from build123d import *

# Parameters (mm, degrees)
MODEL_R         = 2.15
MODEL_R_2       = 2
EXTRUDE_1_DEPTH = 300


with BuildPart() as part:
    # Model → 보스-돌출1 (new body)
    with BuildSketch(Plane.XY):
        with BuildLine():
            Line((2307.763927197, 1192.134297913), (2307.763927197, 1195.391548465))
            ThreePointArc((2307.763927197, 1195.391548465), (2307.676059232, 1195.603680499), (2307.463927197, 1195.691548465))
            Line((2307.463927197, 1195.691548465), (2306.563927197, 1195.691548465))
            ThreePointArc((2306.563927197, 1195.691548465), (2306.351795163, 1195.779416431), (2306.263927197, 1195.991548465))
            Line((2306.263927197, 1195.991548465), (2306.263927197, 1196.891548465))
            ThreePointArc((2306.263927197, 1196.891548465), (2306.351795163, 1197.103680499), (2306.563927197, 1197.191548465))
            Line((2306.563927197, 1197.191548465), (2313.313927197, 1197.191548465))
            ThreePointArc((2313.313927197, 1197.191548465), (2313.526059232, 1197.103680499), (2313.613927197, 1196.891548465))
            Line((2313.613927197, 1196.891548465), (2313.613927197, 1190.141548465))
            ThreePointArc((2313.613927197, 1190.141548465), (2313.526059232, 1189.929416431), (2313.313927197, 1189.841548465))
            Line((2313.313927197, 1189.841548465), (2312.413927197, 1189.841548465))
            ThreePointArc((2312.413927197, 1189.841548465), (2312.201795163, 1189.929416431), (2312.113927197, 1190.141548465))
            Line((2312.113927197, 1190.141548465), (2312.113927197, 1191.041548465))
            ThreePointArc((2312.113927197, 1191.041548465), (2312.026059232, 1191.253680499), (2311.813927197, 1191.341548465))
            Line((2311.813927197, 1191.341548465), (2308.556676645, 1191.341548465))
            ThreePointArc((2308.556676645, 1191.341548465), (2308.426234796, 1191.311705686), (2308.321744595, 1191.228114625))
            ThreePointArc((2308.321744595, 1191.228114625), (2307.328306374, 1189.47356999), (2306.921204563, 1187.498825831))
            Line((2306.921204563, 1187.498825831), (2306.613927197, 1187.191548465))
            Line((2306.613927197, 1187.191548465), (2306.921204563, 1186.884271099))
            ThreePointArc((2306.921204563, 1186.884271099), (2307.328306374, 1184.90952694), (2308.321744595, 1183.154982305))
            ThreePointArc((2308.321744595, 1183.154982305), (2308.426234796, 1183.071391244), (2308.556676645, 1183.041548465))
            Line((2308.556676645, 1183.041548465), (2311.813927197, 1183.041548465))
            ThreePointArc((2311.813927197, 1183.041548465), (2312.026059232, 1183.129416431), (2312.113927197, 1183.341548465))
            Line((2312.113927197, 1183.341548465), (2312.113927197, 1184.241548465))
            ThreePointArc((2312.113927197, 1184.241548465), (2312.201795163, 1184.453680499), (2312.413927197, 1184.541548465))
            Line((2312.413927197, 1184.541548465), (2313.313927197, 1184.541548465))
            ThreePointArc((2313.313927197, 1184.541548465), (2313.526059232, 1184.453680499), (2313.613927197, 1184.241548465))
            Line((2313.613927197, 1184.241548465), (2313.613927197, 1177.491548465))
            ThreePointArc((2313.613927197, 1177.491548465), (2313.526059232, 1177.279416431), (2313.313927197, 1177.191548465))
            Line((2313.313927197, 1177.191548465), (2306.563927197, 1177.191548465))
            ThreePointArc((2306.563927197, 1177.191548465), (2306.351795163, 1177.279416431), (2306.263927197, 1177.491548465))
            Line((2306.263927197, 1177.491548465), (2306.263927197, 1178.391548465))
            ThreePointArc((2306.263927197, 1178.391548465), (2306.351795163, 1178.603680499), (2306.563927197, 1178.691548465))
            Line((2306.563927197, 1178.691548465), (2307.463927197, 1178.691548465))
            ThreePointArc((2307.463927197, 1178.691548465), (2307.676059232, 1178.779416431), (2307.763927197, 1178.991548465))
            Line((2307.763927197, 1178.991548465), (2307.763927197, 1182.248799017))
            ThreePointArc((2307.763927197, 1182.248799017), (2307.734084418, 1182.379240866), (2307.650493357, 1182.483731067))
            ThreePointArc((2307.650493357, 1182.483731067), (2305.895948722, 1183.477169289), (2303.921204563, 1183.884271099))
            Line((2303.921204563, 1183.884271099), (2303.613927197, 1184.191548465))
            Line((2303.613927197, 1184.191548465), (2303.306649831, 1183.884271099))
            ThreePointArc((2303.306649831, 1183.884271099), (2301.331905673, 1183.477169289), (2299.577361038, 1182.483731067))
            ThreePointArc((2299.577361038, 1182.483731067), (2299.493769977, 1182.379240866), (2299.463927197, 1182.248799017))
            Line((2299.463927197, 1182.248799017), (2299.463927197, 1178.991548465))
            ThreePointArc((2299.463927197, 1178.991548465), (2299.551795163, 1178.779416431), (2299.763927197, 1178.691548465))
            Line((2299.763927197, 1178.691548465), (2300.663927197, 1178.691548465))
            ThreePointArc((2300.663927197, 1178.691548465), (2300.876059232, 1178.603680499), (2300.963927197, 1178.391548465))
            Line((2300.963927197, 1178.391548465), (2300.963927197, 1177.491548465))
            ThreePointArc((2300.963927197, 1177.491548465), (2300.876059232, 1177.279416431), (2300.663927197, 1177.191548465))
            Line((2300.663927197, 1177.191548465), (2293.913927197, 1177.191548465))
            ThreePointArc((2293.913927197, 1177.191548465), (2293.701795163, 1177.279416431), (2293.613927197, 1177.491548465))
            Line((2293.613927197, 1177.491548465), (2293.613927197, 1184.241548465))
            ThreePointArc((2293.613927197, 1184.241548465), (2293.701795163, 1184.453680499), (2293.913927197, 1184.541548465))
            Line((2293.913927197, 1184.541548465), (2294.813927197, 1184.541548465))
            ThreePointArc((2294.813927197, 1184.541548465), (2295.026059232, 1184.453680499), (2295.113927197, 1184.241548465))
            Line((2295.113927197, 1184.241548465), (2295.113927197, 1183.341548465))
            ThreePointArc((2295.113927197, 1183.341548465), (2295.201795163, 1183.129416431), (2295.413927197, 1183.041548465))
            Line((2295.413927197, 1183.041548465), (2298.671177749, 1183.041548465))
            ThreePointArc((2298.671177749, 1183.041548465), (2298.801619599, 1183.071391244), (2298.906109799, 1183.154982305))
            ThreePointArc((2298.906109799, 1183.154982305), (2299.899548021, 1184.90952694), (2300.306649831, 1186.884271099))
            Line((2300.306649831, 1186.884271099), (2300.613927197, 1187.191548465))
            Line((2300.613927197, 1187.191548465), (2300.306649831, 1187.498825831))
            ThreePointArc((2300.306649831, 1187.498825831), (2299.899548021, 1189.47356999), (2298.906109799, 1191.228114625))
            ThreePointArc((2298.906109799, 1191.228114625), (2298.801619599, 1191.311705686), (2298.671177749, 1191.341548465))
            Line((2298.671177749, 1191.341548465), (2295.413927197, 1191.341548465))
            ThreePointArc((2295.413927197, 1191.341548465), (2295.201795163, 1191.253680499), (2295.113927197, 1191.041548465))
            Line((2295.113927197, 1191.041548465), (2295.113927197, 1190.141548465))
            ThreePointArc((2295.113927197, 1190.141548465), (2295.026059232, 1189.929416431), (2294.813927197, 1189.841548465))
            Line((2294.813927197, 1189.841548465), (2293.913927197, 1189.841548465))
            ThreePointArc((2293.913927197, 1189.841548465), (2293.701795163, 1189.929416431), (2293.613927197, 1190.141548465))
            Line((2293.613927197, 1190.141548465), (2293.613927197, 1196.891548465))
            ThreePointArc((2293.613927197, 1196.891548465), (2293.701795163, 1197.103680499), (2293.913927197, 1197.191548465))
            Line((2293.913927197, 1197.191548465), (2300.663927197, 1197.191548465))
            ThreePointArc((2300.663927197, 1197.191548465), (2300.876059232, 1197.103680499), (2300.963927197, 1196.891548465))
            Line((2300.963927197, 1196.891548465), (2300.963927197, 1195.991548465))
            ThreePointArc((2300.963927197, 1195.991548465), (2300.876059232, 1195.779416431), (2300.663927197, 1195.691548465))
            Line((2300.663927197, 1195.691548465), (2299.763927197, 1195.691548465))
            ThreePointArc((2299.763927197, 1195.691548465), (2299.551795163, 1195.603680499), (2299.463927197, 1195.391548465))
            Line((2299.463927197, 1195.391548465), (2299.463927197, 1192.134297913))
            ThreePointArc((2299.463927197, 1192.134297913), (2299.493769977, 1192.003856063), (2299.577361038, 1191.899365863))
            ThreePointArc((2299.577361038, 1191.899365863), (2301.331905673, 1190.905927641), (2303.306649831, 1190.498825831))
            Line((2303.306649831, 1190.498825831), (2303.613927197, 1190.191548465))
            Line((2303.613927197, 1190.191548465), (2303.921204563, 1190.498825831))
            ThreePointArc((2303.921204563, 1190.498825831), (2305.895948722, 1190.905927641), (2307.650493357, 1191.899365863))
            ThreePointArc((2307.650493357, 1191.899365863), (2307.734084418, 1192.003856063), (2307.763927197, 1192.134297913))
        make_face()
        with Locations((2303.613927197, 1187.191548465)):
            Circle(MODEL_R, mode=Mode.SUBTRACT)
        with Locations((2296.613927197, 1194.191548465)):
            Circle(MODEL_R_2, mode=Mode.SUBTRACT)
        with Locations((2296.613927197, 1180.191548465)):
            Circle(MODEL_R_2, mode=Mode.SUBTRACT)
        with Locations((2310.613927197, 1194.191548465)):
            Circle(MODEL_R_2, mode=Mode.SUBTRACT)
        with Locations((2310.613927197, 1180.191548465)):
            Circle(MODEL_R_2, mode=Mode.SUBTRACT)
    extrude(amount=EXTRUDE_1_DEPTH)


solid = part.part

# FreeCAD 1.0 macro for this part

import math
import FreeCAD as App
import Part
import Sketcher

V = App.Vector
Q = App.Units.Quantity

doc = App.newDocument("Part")
body = doc.addObject("PartDesign::Body", "Body")

sketch1 = body.newObject("Sketcher::SketchObject", "Sketch")
sketch1.AttachmentSupport = (doc.getObject("XY_Plane"), [""])
sketch1.MapMode = "FlatFace"
sketch1.addGeometry(Part.LineSegment(V(2307.763927, 1195.391548, 0), V(2307.763927, 1192.134298, 0)), False)
sketch1.addGeometry(Part.ArcOfCircle(Part.Circle(V(2307.463927, 1192.134298, 0), V(0, 0, 1), 0.3), math.radians(-51.545921), math.radians(0)), False)
sketch1.addGeometry(Part.ArcOfCircle(Part.Circle(V(2303.613927, 1196.982382, 0), V(0, 0, 1), 6.490833), math.radians(-87.286592), math.radians(-51.545921)), False)
sketch1.addGeometry(Part.LineSegment(V(2303.921205, 1190.498826, 0), V(2303.613927, 1190.191548, 0)), False)
sketch1.addGeometry(Part.LineSegment(V(2303.613927, 1190.191548, 0), V(2303.30665, 1190.498826, 0)), False)
sketch1.addGeometry(Part.ArcOfCircle(Part.Circle(V(2303.613927, 1196.982382, 0), V(0, 0, 1), 6.490833), math.radians(-128.454079), math.radians(-92.713408)), False)
sketch1.addGeometry(Part.ArcOfCircle(Part.Circle(V(2299.763927, 1192.134298, 0), V(0, 0, 1), 0.3), math.radians(-180), math.radians(-128.454079)), False)
sketch1.addGeometry(Part.LineSegment(V(2299.463927, 1192.134298, 0), V(2299.463927, 1195.391548, 0)), False)
sketch1.addGeometry(Part.ArcOfCircle(Part.Circle(V(2299.763927, 1195.391548, 0), V(0, 0, 1), 0.3), math.radians(90), math.radians(180)), False)
sketch1.addGeometry(Part.LineSegment(V(2299.763927, 1195.691548, 0), V(2300.663927, 1195.691548, 0)), False)
sketch1.addGeometry(Part.ArcOfCircle(Part.Circle(V(2300.663927, 1195.991548, 0), V(0, 0, 1), 0.3), math.radians(-90), math.radians(0)), False)
sketch1.addGeometry(Part.LineSegment(V(2300.963927, 1195.991548, 0), V(2300.963927, 1196.891548, 0)), False)
sketch1.addGeometry(Part.ArcOfCircle(Part.Circle(V(2300.663927, 1196.891548, 0), V(0, 0, 1), 0.3), math.radians(0), math.radians(90)), False)
sketch1.addGeometry(Part.LineSegment(V(2300.663927, 1197.191548, 0), V(2293.913927, 1197.191548, 0)), False)
sketch1.addGeometry(Part.ArcOfCircle(Part.Circle(V(2293.913927, 1196.891548, 0), V(0, 0, 1), 0.3), math.radians(90), math.radians(180)), False)
sketch1.addGeometry(Part.LineSegment(V(2293.613927, 1196.891548, 0), V(2293.613927, 1190.141548, 0)), False)
sketch1.addGeometry(Part.ArcOfCircle(Part.Circle(V(2293.913927, 1190.141548, 0), V(0, 0, 1), 0.3), math.radians(-180), math.radians(-90)), False)
sketch1.addGeometry(Part.LineSegment(V(2293.913927, 1189.841548, 0), V(2294.813927, 1189.841548, 0)), False)
sketch1.addGeometry(Part.ArcOfCircle(Part.Circle(V(2294.813927, 1190.141548, 0), V(0, 0, 1), 0.3), math.radians(-90), math.radians(0)), False)
sketch1.addGeometry(Part.LineSegment(V(2295.113927, 1190.141548, 0), V(2295.113927, 1191.041548, 0)), False)
sketch1.addGeometry(Part.ArcOfCircle(Part.Circle(V(2295.413927, 1191.041548, 0), V(0, 0, 1), 0.3), math.radians(90), math.radians(180)), False)
sketch1.addGeometry(Part.LineSegment(V(2295.413927, 1191.341548, 0), V(2298.671178, 1191.341548, 0)), False)
sketch1.addGeometry(Part.ArcOfCircle(Part.Circle(V(2298.671178, 1191.041548, 0), V(0, 0, 1), 0.3), math.radians(38.454079), math.radians(90)), False)
sketch1.addGeometry(Part.ArcOfCircle(Part.Circle(V(2293.823094, 1187.191548, 0), V(0, 0, 1), 6.490833), math.radians(2.713408), math.radians(38.454079)), False)
sketch1.addGeometry(Part.LineSegment(V(2300.30665, 1187.498826, 0), V(2300.613927, 1187.191548, 0)), False)
sketch1.addGeometry(Part.LineSegment(V(2300.613927, 1187.191548, 0), V(2300.30665, 1186.884271, 0)), False)
sketch1.addGeometry(Part.ArcOfCircle(Part.Circle(V(2293.823094, 1187.191548, 0), V(0, 0, 1), 6.490833), math.radians(-38.454079), math.radians(-2.713408)), False)
sketch1.addGeometry(Part.ArcOfCircle(Part.Circle(V(2298.671178, 1183.341548, 0), V(0, 0, 1), 0.3), math.radians(-90), math.radians(-38.454079)), False)
sketch1.addGeometry(Part.LineSegment(V(2298.671178, 1183.041548, 0), V(2295.413927, 1183.041548, 0)), False)
sketch1.addGeometry(Part.ArcOfCircle(Part.Circle(V(2295.413927, 1183.341548, 0), V(0, 0, 1), 0.3), math.radians(-180), math.radians(-90)), False)
sketch1.addGeometry(Part.LineSegment(V(2295.113927, 1183.341548, 0), V(2295.113927, 1184.241548, 0)), False)
sketch1.addGeometry(Part.ArcOfCircle(Part.Circle(V(2294.813927, 1184.241548, 0), V(0, 0, 1), 0.3), math.radians(0), math.radians(90)), False)
sketch1.addGeometry(Part.LineSegment(V(2294.813927, 1184.541548, 0), V(2293.913927, 1184.541548, 0)), False)
sketch1.addGeometry(Part.ArcOfCircle(Part.Circle(V(2293.913927, 1184.241548, 0), V(0, 0, 1), 0.3), math.radians(90), math.radians(180)), False)
sketch1.addGeometry(Part.LineSegment(V(2293.613927, 1184.241548, 0), V(2293.613927, 1177.491548, 0)), False)
sketch1.addGeometry(Part.ArcOfCircle(Part.Circle(V(2293.913927, 1177.491548, 0), V(0, 0, 1), 0.3), math.radians(-180), math.radians(-90)), False)
sketch1.addGeometry(Part.LineSegment(V(2293.913927, 1177.191548, 0), V(2300.663927, 1177.191548, 0)), False)
sketch1.addGeometry(Part.ArcOfCircle(Part.Circle(V(2300.663927, 1177.491548, 0), V(0, 0, 1), 0.3), math.radians(-90), math.radians(0)), False)
sketch1.addGeometry(Part.LineSegment(V(2300.963927, 1177.491548, 0), V(2300.963927, 1178.391548, 0)), False)
sketch1.addGeometry(Part.ArcOfCircle(Part.Circle(V(2300.663927, 1178.391548, 0), V(0, 0, 1), 0.3), math.radians(0), math.radians(90)), False)
sketch1.addGeometry(Part.LineSegment(V(2300.663927, 1178.691548, 0), V(2299.763927, 1178.691548, 0)), False)
sketch1.addGeometry(Part.ArcOfCircle(Part.Circle(V(2299.763927, 1178.991548, 0), V(0, 0, 1), 0.3), math.radians(-180), math.radians(-90)), False)
sketch1.addGeometry(Part.LineSegment(V(2299.463927, 1178.991548, 0), V(2299.463927, 1182.248799, 0)), False)
sketch1.addGeometry(Part.ArcOfCircle(Part.Circle(V(2299.763927, 1182.248799, 0), V(0, 0, 1), 0.3), math.radians(128.45408), math.radians(179.999999)), False)
sketch1.addGeometry(Part.ArcOfCircle(Part.Circle(V(2303.613927, 1177.400715, 0), V(0, 0, 1), 6.490833), math.radians(92.713408), math.radians(128.454079)), False)
sketch1.addGeometry(Part.LineSegment(V(2303.30665, 1183.884271, 0), V(2303.613927, 1184.191548, 0)), False)
sketch1.addGeometry(Part.LineSegment(V(2303.613927, 1184.191548, 0), V(2303.921205, 1183.884271, 0)), False)
sketch1.addGeometry(Part.ArcOfCircle(Part.Circle(V(2303.613927, 1177.400715, 0), V(0, 0, 1), 6.490833), math.radians(51.545921), math.radians(87.286592)), False)
sketch1.addGeometry(Part.ArcOfCircle(Part.Circle(V(2307.463927, 1182.248799, 0), V(0, 0, 1), 0.3), math.radians(0), math.radians(51.545921)), False)
sketch1.addGeometry(Part.LineSegment(V(2307.763927, 1182.248799, 0), V(2307.763927, 1178.991548, 0)), False)
sketch1.addGeometry(Part.ArcOfCircle(Part.Circle(V(2307.463927, 1178.991548, 0), V(0, 0, 1), 0.3), math.radians(-90), math.radians(0)), False)
sketch1.addGeometry(Part.LineSegment(V(2307.463927, 1178.691548, 0), V(2306.563927, 1178.691548, 0)), False)
sketch1.addGeometry(Part.ArcOfCircle(Part.Circle(V(2306.563927, 1178.391548, 0), V(0, 0, 1), 0.3), math.radians(90), math.radians(180)), False)
sketch1.addGeometry(Part.LineSegment(V(2306.263927, 1178.391548, 0), V(2306.263927, 1177.491548, 0)), False)
sketch1.addGeometry(Part.ArcOfCircle(Part.Circle(V(2306.563927, 1177.491548, 0), V(0, 0, 1), 0.3), math.radians(-180), math.radians(-90)), False)
sketch1.addGeometry(Part.LineSegment(V(2306.563927, 1177.191548, 0), V(2313.313927, 1177.191548, 0)), False)
sketch1.addGeometry(Part.ArcOfCircle(Part.Circle(V(2313.313927, 1177.491548, 0), V(0, 0, 1), 0.3), math.radians(-90), math.radians(0)), False)
sketch1.addGeometry(Part.LineSegment(V(2313.613927, 1177.491548, 0), V(2313.613927, 1184.241548, 0)), False)
sketch1.addGeometry(Part.ArcOfCircle(Part.Circle(V(2313.313927, 1184.241548, 0), V(0, 0, 1), 0.3), math.radians(0), math.radians(90)), False)
sketch1.addGeometry(Part.LineSegment(V(2313.313927, 1184.541548, 0), V(2312.413927, 1184.541548, 0)), False)
sketch1.addGeometry(Part.ArcOfCircle(Part.Circle(V(2312.413927, 1184.241548, 0), V(0, 0, 1), 0.3), math.radians(90), math.radians(180)), False)
sketch1.addGeometry(Part.LineSegment(V(2312.113927, 1184.241548, 0), V(2312.113927, 1183.341548, 0)), False)
sketch1.addGeometry(Part.ArcOfCircle(Part.Circle(V(2311.813927, 1183.341548, 0), V(0, 0, 1), 0.3), math.radians(-90), math.radians(0)), False)
sketch1.addGeometry(Part.LineSegment(V(2311.813927, 1183.041548, 0), V(2308.556677, 1183.041548, 0)), False)
sketch1.addGeometry(Part.ArcOfCircle(Part.Circle(V(2308.556677, 1183.341548, 0), V(0, 0, 1), 0.3), math.radians(-141.545921), math.radians(-90)), False)
sketch1.addGeometry(Part.ArcOfCircle(Part.Circle(V(2313.404761, 1187.191548, 0), V(0, 0, 1), 6.490833), math.radians(-177.286592), math.radians(-141.545921)), False)
sketch1.addGeometry(Part.LineSegment(V(2306.921205, 1186.884271, 0), V(2306.613927, 1187.191548, 0)), False)
sketch1.addGeometry(Part.LineSegment(V(2306.613927, 1187.191548, 0), V(2306.921205, 1187.498826, 0)), False)
sketch1.addGeometry(Part.ArcOfCircle(Part.Circle(V(2313.404761, 1187.191548, 0), V(0, 0, 1), 6.490833), math.radians(141.545921), math.radians(177.286592)), False)
sketch1.addGeometry(Part.ArcOfCircle(Part.Circle(V(2308.556677, 1191.041548, 0), V(0, 0, 1), 0.3), math.radians(90), math.radians(141.545921)), False)
sketch1.addGeometry(Part.LineSegment(V(2308.556677, 1191.341548, 0), V(2311.813927, 1191.341548, 0)), False)
sketch1.addGeometry(Part.ArcOfCircle(Part.Circle(V(2311.813927, 1191.041548, 0), V(0, 0, 1), 0.3), math.radians(0), math.radians(90)), False)
sketch1.addGeometry(Part.LineSegment(V(2312.113927, 1191.041548, 0), V(2312.113927, 1190.141548, 0)), False)
sketch1.addGeometry(Part.ArcOfCircle(Part.Circle(V(2312.413927, 1190.141548, 0), V(0, 0, 1), 0.3), math.radians(-180), math.radians(-90)), False)
sketch1.addGeometry(Part.LineSegment(V(2312.413927, 1189.841548, 0), V(2313.313927, 1189.841548, 0)), False)
sketch1.addGeometry(Part.ArcOfCircle(Part.Circle(V(2313.313927, 1190.141548, 0), V(0, 0, 1), 0.3), math.radians(-90), math.radians(0)), False)
sketch1.addGeometry(Part.LineSegment(V(2313.613927, 1190.141548, 0), V(2313.613927, 1196.891548, 0)), False)
sketch1.addGeometry(Part.ArcOfCircle(Part.Circle(V(2313.313927, 1196.891548, 0), V(0, 0, 1), 0.3), math.radians(0), math.radians(90)), False)
sketch1.addGeometry(Part.LineSegment(V(2313.313927, 1197.191548, 0), V(2306.563927, 1197.191548, 0)), False)
sketch1.addGeometry(Part.ArcOfCircle(Part.Circle(V(2306.563927, 1196.891548, 0), V(0, 0, 1), 0.3), math.radians(90), math.radians(180)), False)
sketch1.addGeometry(Part.LineSegment(V(2306.263927, 1196.891548, 0), V(2306.263927, 1195.991548, 0)), False)
sketch1.addGeometry(Part.ArcOfCircle(Part.Circle(V(2306.563927, 1195.991548, 0), V(0, 0, 1), 0.3), math.radians(-180), math.radians(-90)), False)
sketch1.addGeometry(Part.LineSegment(V(2306.563927, 1195.691548, 0), V(2307.463927, 1195.691548, 0)), False)
sketch1.addGeometry(Part.ArcOfCircle(Part.Circle(V(2307.463927, 1195.391548, 0), V(0, 0, 1), 0.3), math.radians(0), math.radians(90)), False)
sketch1.addGeometry(Part.Circle(V(2310.613927, 1180.191548, 0), V(0, 0, 1), 2), False)
sketch1.addGeometry(Part.Circle(V(2296.613927, 1180.191548, 0), V(0, 0, 1), 2), False)
sketch1.addGeometry(Part.Circle(V(2310.613927, 1194.191548, 0), V(0, 0, 1), 2), False)
sketch1.addGeometry(Part.Circle(V(2303.613927, 1187.191548, 0), V(0, 0, 1), 2.15), False)
sketch1.addGeometry(Part.Circle(V(2296.613927, 1194.191548, 0), V(0, 0, 1), 2), False)
sketch1.addConstraint(Sketcher.Constraint("Tangent", 0, 2, 1, 2))
sketch1.addConstraint(Sketcher.Constraint("Tangent", 1, 1, 2, 2))
sketch1.addConstraint(Sketcher.Constraint("Coincident", 2, 1, 3, 1))
sketch1.addConstraint(Sketcher.Constraint("Coincident", 3, 2, 4, 1))
sketch1.addConstraint(Sketcher.Constraint("Coincident", 4, 2, 5, 2))
sketch1.addConstraint(Sketcher.Constraint("Tangent", 5, 1, 6, 2))
sketch1.addConstraint(Sketcher.Constraint("Tangent", 6, 1, 7, 1))
sketch1.addConstraint(Sketcher.Constraint("Tangent", 7, 2, 8, 2))
sketch1.addConstraint(Sketcher.Constraint("Tangent", 8, 1, 9, 1))
sketch1.addConstraint(Sketcher.Constraint("Tangent", 9, 2, 10, 1))
sketch1.addConstraint(Sketcher.Constraint("Tangent", 10, 2, 11, 1))
sketch1.addConstraint(Sketcher.Constraint("Tangent", 11, 2, 12, 1))
sketch1.addConstraint(Sketcher.Constraint("Tangent", 12, 2, 13, 1))
sketch1.addConstraint(Sketcher.Constraint("Tangent", 13, 2, 14, 1))
sketch1.addConstraint(Sketcher.Constraint("Tangent", 14, 2, 15, 1))
sketch1.addConstraint(Sketcher.Constraint("Tangent", 15, 2, 16, 1))
sketch1.addConstraint(Sketcher.Constraint("Tangent", 16, 2, 17, 1))
sketch1.addConstraint(Sketcher.Constraint("Tangent", 17, 2, 18, 1))
sketch1.addConstraint(Sketcher.Constraint("Tangent", 18, 2, 19, 1))
sketch1.addConstraint(Sketcher.Constraint("Tangent", 19, 2, 20, 2))
sketch1.addConstraint(Sketcher.Constraint("Tangent", 20, 1, 21, 1))
sketch1.addConstraint(Sketcher.Constraint("Tangent", 21, 2, 22, 2))
sketch1.addConstraint(Sketcher.Constraint("Tangent", 22, 1, 23, 2))
sketch1.addConstraint(Sketcher.Constraint("Coincident", 23, 1, 24, 1))
sketch1.addConstraint(Sketcher.Constraint("Coincident", 24, 2, 25, 1))
sketch1.addConstraint(Sketcher.Constraint("Coincident", 25, 2, 26, 2))
sketch1.addConstraint(Sketcher.Constraint("Tangent", 26, 1, 27, 2))
sketch1.addConstraint(Sketcher.Constraint("Tangent", 27, 1, 28, 1))
sketch1.addConstraint(Sketcher.Constraint("Tangent", 28, 2, 29, 2))
sketch1.addConstraint(Sketcher.Constraint("Tangent", 29, 1, 30, 1))
sketch1.addConstraint(Sketcher.Constraint("Tangent", 30, 2, 31, 1))
sketch1.addConstraint(Sketcher.Constraint("Tangent", 31, 2, 32, 1))
sketch1.addConstraint(Sketcher.Constraint("Tangent", 32, 2, 33, 1))
sketch1.addConstraint(Sketcher.Constraint("Tangent", 33, 2, 34, 1))
sketch1.addConstraint(Sketcher.Constraint("Tangent", 34, 2, 35, 1))
sketch1.addConstraint(Sketcher.Constraint("Tangent", 35, 2, 36, 1))
sketch1.addConstraint(Sketcher.Constraint("Tangent", 36, 2, 37, 1))
sketch1.addConstraint(Sketcher.Constraint("Tangent", 37, 2, 38, 1))
sketch1.addConstraint(Sketcher.Constraint("Tangent", 38, 2, 39, 1))
sketch1.addConstraint(Sketcher.Constraint("Tangent", 39, 2, 40, 1))
sketch1.addConstraint(Sketcher.Constraint("Tangent", 40, 2, 41, 2))
sketch1.addConstraint(Sketcher.Constraint("Tangent", 41, 1, 42, 1))
sketch1.addConstraint(Sketcher.Constraint("Tangent", 42, 2, 43, 2))
sketch1.addConstraint(Sketcher.Constraint("Tangent", 43, 1, 44, 2))
sketch1.addConstraint(Sketcher.Constraint("Coincident", 44, 1, 45, 1))
sketch1.addConstraint(Sketcher.Constraint("Coincident", 45, 2, 46, 1))
sketch1.addConstraint(Sketcher.Constraint("Coincident", 46, 2, 47, 2))
sketch1.addConstraint(Sketcher.Constraint("Tangent", 47, 1, 48, 2))
sketch1.addConstraint(Sketcher.Constraint("Tangent", 48, 1, 49, 1))
sketch1.addConstraint(Sketcher.Constraint("Tangent", 49, 2, 50, 2))
sketch1.addConstraint(Sketcher.Constraint("Tangent", 50, 1, 51, 1))
sketch1.addConstraint(Sketcher.Constraint("Tangent", 51, 2, 52, 1))
sketch1.addConstraint(Sketcher.Constraint("Tangent", 52, 2, 53, 1))
sketch1.addConstraint(Sketcher.Constraint("Tangent", 53, 2, 54, 1))
sketch1.addConstraint(Sketcher.Constraint("Tangent", 54, 2, 55, 1))
sketch1.addConstraint(Sketcher.Constraint("Tangent", 55, 2, 56, 1))
sketch1.addConstraint(Sketcher.Constraint("Tangent", 56, 2, 57, 1))
sketch1.addConstraint(Sketcher.Constraint("Tangent", 57, 2, 58, 1))
sketch1.addConstraint(Sketcher.Constraint("Tangent", 58, 2, 59, 1))
sketch1.addConstraint(Sketcher.Constraint("Tangent", 59, 2, 60, 1))
sketch1.addConstraint(Sketcher.Constraint("Tangent", 60, 2, 61, 1))
sketch1.addConstraint(Sketcher.Constraint("Tangent", 61, 2, 62, 2))
sketch1.addConstraint(Sketcher.Constraint("Tangent", 62, 1, 63, 1))
sketch1.addConstraint(Sketcher.Constraint("Tangent", 63, 2, 64, 2))
sketch1.addConstraint(Sketcher.Constraint("Tangent", 64, 1, 65, 2))
sketch1.addConstraint(Sketcher.Constraint("Coincident", 65, 1, 66, 1))
sketch1.addConstraint(Sketcher.Constraint("Coincident", 66, 2, 67, 1))
sketch1.addConstraint(Sketcher.Constraint("Coincident", 67, 2, 68, 2))
sketch1.addConstraint(Sketcher.Constraint("Tangent", 68, 1, 69, 2))
sketch1.addConstraint(Sketcher.Constraint("Tangent", 69, 1, 70, 1))
sketch1.addConstraint(Sketcher.Constraint("Tangent", 70, 2, 71, 2))
sketch1.addConstraint(Sketcher.Constraint("Tangent", 71, 1, 72, 1))
sketch1.addConstraint(Sketcher.Constraint("Tangent", 72, 2, 73, 1))
sketch1.addConstraint(Sketcher.Constraint("Tangent", 73, 2, 74, 1))
sketch1.addConstraint(Sketcher.Constraint("Tangent", 74, 2, 75, 1))
sketch1.addConstraint(Sketcher.Constraint("Tangent", 75, 2, 76, 1))
sketch1.addConstraint(Sketcher.Constraint("Tangent", 76, 2, 77, 1))
sketch1.addConstraint(Sketcher.Constraint("Tangent", 77, 2, 78, 1))
sketch1.addConstraint(Sketcher.Constraint("Tangent", 78, 2, 79, 1))
sketch1.addConstraint(Sketcher.Constraint("Tangent", 79, 2, 80, 1))
sketch1.addConstraint(Sketcher.Constraint("Tangent", 80, 2, 81, 1))
sketch1.addConstraint(Sketcher.Constraint("Tangent", 81, 2, 82, 1))
sketch1.addConstraint(Sketcher.Constraint("Tangent", 82, 2, 83, 2))
sketch1.addConstraint(Sketcher.Constraint("Tangent", 83, 1, 0, 1))
sketch1.addConstraint(Sketcher.Constraint("Vertical", 0))
sketch1.addConstraint(Sketcher.Constraint("Vertical", 7))
sketch1.addConstraint(Sketcher.Constraint("Horizontal", 9))
sketch1.addConstraint(Sketcher.Constraint("Vertical", 11))
sketch1.addConstraint(Sketcher.Constraint("Horizontal", 13))
sketch1.addConstraint(Sketcher.Constraint("Vertical", 15))
sketch1.addConstraint(Sketcher.Constraint("Horizontal", 17))
sketch1.addConstraint(Sketcher.Constraint("Vertical", 19))
sketch1.addConstraint(Sketcher.Constraint("Horizontal", 21))
sketch1.addConstraint(Sketcher.Constraint("Horizontal", 28))
sketch1.addConstraint(Sketcher.Constraint("Vertical", 30))
sketch1.addConstraint(Sketcher.Constraint("Horizontal", 32))
sketch1.addConstraint(Sketcher.Constraint("Vertical", 34))
sketch1.addConstraint(Sketcher.Constraint("Horizontal", 36))
sketch1.addConstraint(Sketcher.Constraint("Vertical", 38))
sketch1.addConstraint(Sketcher.Constraint("Horizontal", 40))
sketch1.addConstraint(Sketcher.Constraint("Vertical", 42))
sketch1.addConstraint(Sketcher.Constraint("Vertical", 49))
sketch1.addConstraint(Sketcher.Constraint("Horizontal", 51))
sketch1.addConstraint(Sketcher.Constraint("Vertical", 53))
sketch1.addConstraint(Sketcher.Constraint("Horizontal", 55))
sketch1.addConstraint(Sketcher.Constraint("Vertical", 57))
sketch1.addConstraint(Sketcher.Constraint("Horizontal", 59))
sketch1.addConstraint(Sketcher.Constraint("Vertical", 61))
sketch1.addConstraint(Sketcher.Constraint("Horizontal", 63))
sketch1.addConstraint(Sketcher.Constraint("Horizontal", 70))
sketch1.addConstraint(Sketcher.Constraint("Vertical", 72))
sketch1.addConstraint(Sketcher.Constraint("Horizontal", 74))
sketch1.addConstraint(Sketcher.Constraint("Vertical", 76))
sketch1.addConstraint(Sketcher.Constraint("Horizontal", 78))
sketch1.addConstraint(Sketcher.Constraint("Vertical", 80))
sketch1.addConstraint(Sketcher.Constraint("Horizontal", 82))
sketch1.addConstraint(Sketcher.Constraint("Coincident", 5, 3, 2, 3))
sketch1.addConstraint(Sketcher.Constraint("Coincident", 26, 3, 23, 3))
sketch1.addConstraint(Sketcher.Constraint("Coincident", 47, 3, 44, 3))
sketch1.addConstraint(Sketcher.Constraint("Coincident", 68, 3, 65, 3))
sketch1.addConstraint(Sketcher.Constraint("Equal", 2, 5))
sketch1.addConstraint(Sketcher.Constraint("Equal", 1, 6))
sketch1.addConstraint(Sketcher.Constraint("Equal", 6, 8))
sketch1.addConstraint(Sketcher.Constraint("Equal", 8, 10))
sketch1.addConstraint(Sketcher.Constraint("Equal", 10, 12))
sketch1.addConstraint(Sketcher.Constraint("Equal", 12, 14))
sketch1.addConstraint(Sketcher.Constraint("Equal", 14, 16))
sketch1.addConstraint(Sketcher.Constraint("Equal", 16, 18))
sketch1.addConstraint(Sketcher.Constraint("Equal", 18, 20))
sketch1.addConstraint(Sketcher.Constraint("Equal", 20, 22))
sketch1.addConstraint(Sketcher.Constraint("Equal", 5, 23))
sketch1.addConstraint(Sketcher.Constraint("Equal", 23, 26))
sketch1.addConstraint(Sketcher.Constraint("Equal", 22, 27))
sketch1.addConstraint(Sketcher.Constraint("Equal", 27, 29))
sketch1.addConstraint(Sketcher.Constraint("Equal", 29, 31))
sketch1.addConstraint(Sketcher.Constraint("Equal", 31, 33))
sketch1.addConstraint(Sketcher.Constraint("Equal", 33, 35))
sketch1.addConstraint(Sketcher.Constraint("Equal", 35, 37))
sketch1.addConstraint(Sketcher.Constraint("Equal", 37, 39))
sketch1.addConstraint(Sketcher.Constraint("Equal", 39, 41))
sketch1.addConstraint(Sketcher.Constraint("Equal", 41, 43))
sketch1.addConstraint(Sketcher.Constraint("Equal", 26, 44))
sketch1.addConstraint(Sketcher.Constraint("Equal", 44, 47))
sketch1.addConstraint(Sketcher.Constraint("Equal", 43, 48))
sketch1.addConstraint(Sketcher.Constraint("Equal", 48, 50))
sketch1.addConstraint(Sketcher.Constraint("Equal", 50, 52))
sketch1.addConstraint(Sketcher.Constraint("Equal", 52, 54))
sketch1.addConstraint(Sketcher.Constraint("Equal", 54, 56))
sketch1.addConstraint(Sketcher.Constraint("Equal", 56, 58))
sketch1.addConstraint(Sketcher.Constraint("Equal", 58, 60))
sketch1.addConstraint(Sketcher.Constraint("Equal", 60, 62))
sketch1.addConstraint(Sketcher.Constraint("Equal", 62, 64))
sketch1.addConstraint(Sketcher.Constraint("Equal", 47, 65))
sketch1.addConstraint(Sketcher.Constraint("Equal", 65, 68))
sketch1.addConstraint(Sketcher.Constraint("Equal", 64, 69))
sketch1.addConstraint(Sketcher.Constraint("Equal", 69, 71))
sketch1.addConstraint(Sketcher.Constraint("Equal", 71, 73))
sketch1.addConstraint(Sketcher.Constraint("Equal", 73, 75))
sketch1.addConstraint(Sketcher.Constraint("Equal", 75, 77))
sketch1.addConstraint(Sketcher.Constraint("Equal", 77, 79))
sketch1.addConstraint(Sketcher.Constraint("Equal", 79, 81))
sketch1.addConstraint(Sketcher.Constraint("Equal", 81, 83))
sketch1.addConstraint(Sketcher.Constraint("Equal", 84, 85))
sketch1.addConstraint(Sketcher.Constraint("Equal", 85, 86))
sketch1.addConstraint(Sketcher.Constraint("Equal", 86, 88))
sketch1.addConstraint(Sketcher.Constraint("Perpendicular", 3, 4))
sketch1.addConstraint(Sketcher.Constraint("Parallel", 4, 24))
sketch1.addConstraint(Sketcher.Constraint("Perpendicular", 24, 25))
sketch1.addConstraint(Sketcher.Constraint("Parallel", 25, 45))
sketch1.addConstraint(Sketcher.Constraint("Perpendicular", 45, 46))
sketch1.addConstraint(Sketcher.Constraint("Parallel", 46, 66))
sketch1.addConstraint(Sketcher.Constraint("Perpendicular", 66, 67))
sketch1.addConstraint(Sketcher.Constraint("Horizontal", 1, 3, 6, 3))
sketch1.addConstraint(Sketcher.Constraint("Horizontal", 43, 3, 48, 3))
sketch1.addConstraint(Sketcher.Constraint("Horizontal", 41, 3, 50, 3))
sketch1.addConstraint(Sketcher.Constraint("Horizontal", 37, 3, 54, 3))
sketch1.addConstraint(Sketcher.Constraint("Horizontal", 33, 3, 58, 3))
sketch1.addConstraint(Sketcher.Constraint("Horizontal", 29, 3, 62, 3))
sketch1.addConstraint(Sketcher.Constraint("Horizontal", 26, 3, 65, 3))
sketch1.addConstraint(Sketcher.Constraint("Horizontal", 22, 3, 69, 3))
sketch1.addConstraint(Sketcher.Constraint("Horizontal", 18, 3, 73, 3))
sketch1.addConstraint(Sketcher.Constraint("Horizontal", 14, 3, 77, 3))
sketch1.addConstraint(Sketcher.Constraint("Horizontal", 10, 3, 81, 3))
sketch1.addConstraint(Sketcher.Constraint("Horizontal", 84, 3, 85, 3))
sketch1.addConstraint(Sketcher.Constraint("Horizontal", 68, 3, 87, 3))
sketch1.addConstraint(Sketcher.Constraint("Horizontal", 86, 3, 88, 3))
sketch1.addConstraint(Sketcher.Constraint("Horizontal", 2, 1, 4, 2))
sketch1.addConstraint(Sketcher.Constraint("Horizontal", 87, 3, 24, 2))
sketch1.addConstraint(Sketcher.Constraint("Horizontal", 44, 1, 46, 2))
sketch1.addConstraint(Sketcher.Constraint("Horizontal", 25, 2, 65, 1))
sketch1.addConstraint(Sketcher.Constraint("Horizontal", 24, 2, 66, 2))
sketch1.addConstraint(Sketcher.Constraint("Horizontal", 23, 1, 67, 2))
sketch1.addConstraint(Sketcher.Constraint("Vertical", 22, 3, 27, 3))
sketch1.addConstraint(Sketcher.Constraint("Vertical", 20, 3, 29, 3))
sketch1.addConstraint(Sketcher.Constraint("Vertical", 16, 3, 33, 3))
sketch1.addConstraint(Sketcher.Constraint("Vertical", 12, 3, 37, 3))
sketch1.addConstraint(Sketcher.Constraint("Vertical", 8, 3, 41, 3))
sketch1.addConstraint(Sketcher.Constraint("Vertical", 5, 3, 44, 3))
sketch1.addConstraint(Sketcher.Constraint("Vertical", 62, 3, 71, 3))
sketch1.addConstraint(Sketcher.Constraint("Vertical", 58, 3, 75, 3))
sketch1.addConstraint(Sketcher.Constraint("Vertical", 54, 3, 79, 3))
sketch1.addConstraint(Sketcher.Constraint("Vertical", 84, 3, 86, 3))
sketch1.addConstraint(Sketcher.Constraint("Vertical", 47, 3, 87, 3))
sketch1.addConstraint(Sketcher.Constraint("Vertical", 85, 3, 88, 3))
sketch1.addConstraint(Sketcher.Constraint("Vertical", 4, 2, 44, 1))
sketch1.addConstraint(Sketcher.Constraint("Equal", 9, 17))
sketch1.addConstraint(Sketcher.Constraint("Equal", 40, 51))
sketch1.addConstraint(Sketcher.Constraint("Equal", 36, 55))
sketch1.addConstraint(Sketcher.Constraint("Equal", 51, 59))
sketch1.addConstraint(Sketcher.Constraint("Equal", 28, 63))
sketch1.addConstraint(Sketcher.Constraint("Equal", 70, 0))
sketch1.addConstraint(Sketcher.Constraint("Equal", 82, 11))
sketch1.addConstraint(Sketcher.Constraint("Equal", 78, 15))
sketch1.addConstraint(Sketcher.Constraint("Equal", 11, 19))
sketch1.addConstraint(Sketcher.Constraint("Equal", 19, 30))
sketch1.addConstraint(Sketcher.Constraint("Equal", 15, 34))
sketch1.addConstraint(Sketcher.Constraint("Equal", 30, 38))
sketch1.addConstraint(Sketcher.Constraint("Equal", 7, 42))
sketch1.addConstraint(Sketcher.Constraint("Equal", 4, 24))
sketch1.addConstraint(Sketcher.Constraint("Diameter", 84, Q("4 mm")))
sketch1.addConstraint(Sketcher.Constraint("Diameter", 87, Q("4.3 mm")))
sketch1.addConstraint(Sketcher.Constraint("Radius", 1, Q("0.3 mm")))
sketch1.addConstraint(Sketcher.Constraint("DistanceX", 9, 1, 9, 2, Q("0.9 mm")))
sketch1.addConstraint(Sketcher.Constraint("DistanceX", 13, 2, 13, 1, Q("6.75 mm")))
sketch1.addConstraint(Sketcher.Constraint("Radius", 2, Q("6.490833 mm")))
sketch1.addConstraint(Sketcher.Constraint("DistanceX", 21, 1, 21, 2, Q("3.257251 mm")))
sketch1.addConstraint(Sketcher.Constraint("DistanceY", -1, 1, 43, 3, Q("1182.248799 mm")))
sketch1.addConstraint(Sketcher.Constraint("DistanceY", -1, 1, 2, 3, Q("1196.982382 mm")))
sketch1.addConstraint(Sketcher.Constraint("DistanceY", -1, 1, 8, 3, Q("1195.391548 mm")))
sketch1.addConstraint(Sketcher.Constraint("DistanceX", -1, 1, 65, 3, Q("2313.404761 mm")))
sketch1.addConstraint(Sketcher.Constraint("DistanceY", -1, 1, 84, 3, Q("1180.191548 mm")))
sketch1.addConstraint(Sketcher.Constraint("DistanceY", -1, 1, 86, 3, Q("1194.191548 mm")))
sketch1.addConstraint(Sketcher.Constraint("DistanceY", -1, 1, 3, 2, Q("1190.191548 mm")))
sketch1.addConstraint(Sketcher.Constraint("DistanceX", -1, 1, 84, 3, Q("2310.613927 mm")))
sketch1.addConstraint(Sketcher.Constraint("DistanceX", -1, 1, 85, 3, Q("2296.613927 mm")))
pad1 = body.newObject("PartDesign::Pad", "Pad")
pad1.Profile = sketch1
pad1.Length = 300

doc.recompute()
